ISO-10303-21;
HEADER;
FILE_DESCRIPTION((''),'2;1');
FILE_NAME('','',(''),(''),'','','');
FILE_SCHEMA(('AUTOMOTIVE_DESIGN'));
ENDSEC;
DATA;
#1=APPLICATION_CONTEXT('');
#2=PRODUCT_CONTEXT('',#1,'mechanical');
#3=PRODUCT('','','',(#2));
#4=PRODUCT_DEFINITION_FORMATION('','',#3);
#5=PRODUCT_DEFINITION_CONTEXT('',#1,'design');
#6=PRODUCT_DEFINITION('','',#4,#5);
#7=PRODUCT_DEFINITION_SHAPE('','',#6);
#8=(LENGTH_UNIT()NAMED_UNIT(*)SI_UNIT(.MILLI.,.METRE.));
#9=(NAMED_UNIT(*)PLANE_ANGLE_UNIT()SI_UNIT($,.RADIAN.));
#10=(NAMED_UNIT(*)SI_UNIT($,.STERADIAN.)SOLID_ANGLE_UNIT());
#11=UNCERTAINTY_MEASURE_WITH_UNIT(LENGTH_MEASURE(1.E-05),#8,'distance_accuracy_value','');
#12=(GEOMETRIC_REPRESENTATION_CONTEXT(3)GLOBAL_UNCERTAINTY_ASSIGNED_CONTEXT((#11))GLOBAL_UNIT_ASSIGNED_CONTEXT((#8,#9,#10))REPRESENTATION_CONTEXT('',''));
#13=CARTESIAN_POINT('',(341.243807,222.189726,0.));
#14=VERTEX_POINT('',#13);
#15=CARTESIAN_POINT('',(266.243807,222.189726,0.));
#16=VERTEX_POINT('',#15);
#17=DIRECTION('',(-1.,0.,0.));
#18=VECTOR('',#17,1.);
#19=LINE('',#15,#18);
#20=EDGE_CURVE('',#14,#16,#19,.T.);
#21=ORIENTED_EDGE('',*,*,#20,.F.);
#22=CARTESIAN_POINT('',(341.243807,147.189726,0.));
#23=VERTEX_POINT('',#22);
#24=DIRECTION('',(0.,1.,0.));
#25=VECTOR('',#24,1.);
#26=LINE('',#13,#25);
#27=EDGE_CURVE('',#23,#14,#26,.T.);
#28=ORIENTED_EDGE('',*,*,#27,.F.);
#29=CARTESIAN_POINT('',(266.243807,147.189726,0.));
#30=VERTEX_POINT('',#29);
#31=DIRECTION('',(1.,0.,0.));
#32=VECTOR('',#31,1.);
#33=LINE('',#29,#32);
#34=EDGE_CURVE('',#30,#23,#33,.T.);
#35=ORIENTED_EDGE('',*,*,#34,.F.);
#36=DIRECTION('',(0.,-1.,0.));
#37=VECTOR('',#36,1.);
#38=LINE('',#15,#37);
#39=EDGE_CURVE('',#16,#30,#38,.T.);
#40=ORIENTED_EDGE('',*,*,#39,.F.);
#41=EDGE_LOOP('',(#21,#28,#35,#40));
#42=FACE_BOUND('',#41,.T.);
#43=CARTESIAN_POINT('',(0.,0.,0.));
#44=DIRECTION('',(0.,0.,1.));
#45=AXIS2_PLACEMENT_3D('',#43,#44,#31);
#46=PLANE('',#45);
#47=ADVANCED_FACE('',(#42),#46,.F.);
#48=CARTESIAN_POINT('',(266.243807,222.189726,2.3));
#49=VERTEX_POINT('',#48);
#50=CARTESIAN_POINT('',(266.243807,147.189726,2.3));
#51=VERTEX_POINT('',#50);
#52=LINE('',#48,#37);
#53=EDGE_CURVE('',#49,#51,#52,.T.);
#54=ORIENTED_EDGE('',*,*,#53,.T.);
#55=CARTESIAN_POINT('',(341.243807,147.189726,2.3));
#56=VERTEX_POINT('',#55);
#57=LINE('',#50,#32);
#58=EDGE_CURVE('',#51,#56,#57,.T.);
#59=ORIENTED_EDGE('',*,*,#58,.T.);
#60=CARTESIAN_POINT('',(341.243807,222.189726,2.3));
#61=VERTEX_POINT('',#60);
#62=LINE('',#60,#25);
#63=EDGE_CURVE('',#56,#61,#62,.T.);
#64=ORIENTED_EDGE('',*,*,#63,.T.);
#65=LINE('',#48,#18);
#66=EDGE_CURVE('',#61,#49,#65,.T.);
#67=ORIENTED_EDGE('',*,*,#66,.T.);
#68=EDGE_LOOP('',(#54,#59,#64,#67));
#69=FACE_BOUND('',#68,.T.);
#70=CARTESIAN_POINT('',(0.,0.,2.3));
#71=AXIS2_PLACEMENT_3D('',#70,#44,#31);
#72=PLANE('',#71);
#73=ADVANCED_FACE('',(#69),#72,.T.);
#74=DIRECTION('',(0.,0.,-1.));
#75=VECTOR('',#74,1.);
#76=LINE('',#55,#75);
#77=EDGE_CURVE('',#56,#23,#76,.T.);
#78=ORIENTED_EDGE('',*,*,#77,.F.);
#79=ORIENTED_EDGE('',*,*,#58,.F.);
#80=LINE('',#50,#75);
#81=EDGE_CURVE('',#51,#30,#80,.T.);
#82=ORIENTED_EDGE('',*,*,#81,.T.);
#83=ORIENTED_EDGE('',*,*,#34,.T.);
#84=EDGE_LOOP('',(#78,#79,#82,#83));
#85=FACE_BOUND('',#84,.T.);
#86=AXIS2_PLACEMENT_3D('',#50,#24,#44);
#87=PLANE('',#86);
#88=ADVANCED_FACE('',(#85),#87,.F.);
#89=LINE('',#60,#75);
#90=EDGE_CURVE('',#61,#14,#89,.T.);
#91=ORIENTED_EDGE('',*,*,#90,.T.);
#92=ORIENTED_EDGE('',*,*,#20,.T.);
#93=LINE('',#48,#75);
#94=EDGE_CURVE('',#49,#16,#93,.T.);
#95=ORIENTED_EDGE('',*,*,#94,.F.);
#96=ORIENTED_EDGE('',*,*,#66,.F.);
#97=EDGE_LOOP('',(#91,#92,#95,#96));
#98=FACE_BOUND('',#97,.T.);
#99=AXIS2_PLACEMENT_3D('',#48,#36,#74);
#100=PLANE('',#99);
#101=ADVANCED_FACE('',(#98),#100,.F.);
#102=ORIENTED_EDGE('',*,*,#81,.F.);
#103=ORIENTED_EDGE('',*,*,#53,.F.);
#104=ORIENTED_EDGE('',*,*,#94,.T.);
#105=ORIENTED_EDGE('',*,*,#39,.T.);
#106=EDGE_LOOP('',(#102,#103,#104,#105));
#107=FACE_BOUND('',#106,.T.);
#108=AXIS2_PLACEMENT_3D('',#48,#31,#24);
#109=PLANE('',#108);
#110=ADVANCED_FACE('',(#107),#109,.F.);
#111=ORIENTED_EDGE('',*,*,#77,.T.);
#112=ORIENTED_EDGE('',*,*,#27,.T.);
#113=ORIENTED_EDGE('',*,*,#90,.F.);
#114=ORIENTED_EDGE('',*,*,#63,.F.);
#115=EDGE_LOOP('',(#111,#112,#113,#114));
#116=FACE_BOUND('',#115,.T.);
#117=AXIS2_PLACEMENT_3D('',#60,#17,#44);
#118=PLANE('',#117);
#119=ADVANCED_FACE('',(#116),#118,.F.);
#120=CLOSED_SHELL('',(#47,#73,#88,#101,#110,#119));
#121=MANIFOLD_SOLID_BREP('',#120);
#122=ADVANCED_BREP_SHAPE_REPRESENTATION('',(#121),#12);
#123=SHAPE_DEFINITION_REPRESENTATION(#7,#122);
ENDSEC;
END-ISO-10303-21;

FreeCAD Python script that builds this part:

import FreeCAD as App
import Part
import Sketcher

doc = App.newDocument("Part")
body = doc.addObject("PartDesign::Body", "Body")

sketch1 = body.newObject("Sketcher::SketchObject", "Sketch")
sketch1.AttachmentSupport = (doc.getObject("XY_Plane"), [""])
sketch1.MapMode = "FlatFace"
sketch1.addGeometry([
    Part.LineSegment(App.Vector(266, 222, 0), App.Vector(266, 147, 0)),
    Part.LineSegment(App.Vector(266, 147, 0), App.Vector(341, 147, 0)),
    Part.LineSegment(App.Vector(341, 147, 0), App.Vector(341, 222, 0)),
    Part.LineSegment(App.Vector(341, 222, 0), App.Vector(266, 222, 0)),
], False)
sketch1.addConstraint([
    Sketcher.Constraint("Coincident", 0, 2, 1, 1),
    Sketcher.Constraint("Coincident", 1, 2, 2, 1),
    Sketcher.Constraint("Coincident", 2, 2, 3, 1),
    Sketcher.Constraint("Coincident", 3, 2, 0, 1),
    Sketcher.Constraint("Vertical", 0),
    Sketcher.Constraint("Horizontal", 1),
    Sketcher.Constraint("Vertical", 2),
    Sketcher.Constraint("Horizontal", 3),
    Sketcher.Constraint("Equal", 3, 0),
    Sketcher.Constraint("DistanceX", 1, 1, 1, 2, 75.0),
    Sketcher.Constraint("DistanceX", -1, 1, 0, 2, 266.243807),
    Sketcher.Constraint("DistanceY", -1, 1, 0, 2, 147.189726),
])
pad1 = body.newObject("PartDesign::Pad", "Pad")
pad1.Profile = sketch1
pad1.Length = 2.3

doc.recompute()
